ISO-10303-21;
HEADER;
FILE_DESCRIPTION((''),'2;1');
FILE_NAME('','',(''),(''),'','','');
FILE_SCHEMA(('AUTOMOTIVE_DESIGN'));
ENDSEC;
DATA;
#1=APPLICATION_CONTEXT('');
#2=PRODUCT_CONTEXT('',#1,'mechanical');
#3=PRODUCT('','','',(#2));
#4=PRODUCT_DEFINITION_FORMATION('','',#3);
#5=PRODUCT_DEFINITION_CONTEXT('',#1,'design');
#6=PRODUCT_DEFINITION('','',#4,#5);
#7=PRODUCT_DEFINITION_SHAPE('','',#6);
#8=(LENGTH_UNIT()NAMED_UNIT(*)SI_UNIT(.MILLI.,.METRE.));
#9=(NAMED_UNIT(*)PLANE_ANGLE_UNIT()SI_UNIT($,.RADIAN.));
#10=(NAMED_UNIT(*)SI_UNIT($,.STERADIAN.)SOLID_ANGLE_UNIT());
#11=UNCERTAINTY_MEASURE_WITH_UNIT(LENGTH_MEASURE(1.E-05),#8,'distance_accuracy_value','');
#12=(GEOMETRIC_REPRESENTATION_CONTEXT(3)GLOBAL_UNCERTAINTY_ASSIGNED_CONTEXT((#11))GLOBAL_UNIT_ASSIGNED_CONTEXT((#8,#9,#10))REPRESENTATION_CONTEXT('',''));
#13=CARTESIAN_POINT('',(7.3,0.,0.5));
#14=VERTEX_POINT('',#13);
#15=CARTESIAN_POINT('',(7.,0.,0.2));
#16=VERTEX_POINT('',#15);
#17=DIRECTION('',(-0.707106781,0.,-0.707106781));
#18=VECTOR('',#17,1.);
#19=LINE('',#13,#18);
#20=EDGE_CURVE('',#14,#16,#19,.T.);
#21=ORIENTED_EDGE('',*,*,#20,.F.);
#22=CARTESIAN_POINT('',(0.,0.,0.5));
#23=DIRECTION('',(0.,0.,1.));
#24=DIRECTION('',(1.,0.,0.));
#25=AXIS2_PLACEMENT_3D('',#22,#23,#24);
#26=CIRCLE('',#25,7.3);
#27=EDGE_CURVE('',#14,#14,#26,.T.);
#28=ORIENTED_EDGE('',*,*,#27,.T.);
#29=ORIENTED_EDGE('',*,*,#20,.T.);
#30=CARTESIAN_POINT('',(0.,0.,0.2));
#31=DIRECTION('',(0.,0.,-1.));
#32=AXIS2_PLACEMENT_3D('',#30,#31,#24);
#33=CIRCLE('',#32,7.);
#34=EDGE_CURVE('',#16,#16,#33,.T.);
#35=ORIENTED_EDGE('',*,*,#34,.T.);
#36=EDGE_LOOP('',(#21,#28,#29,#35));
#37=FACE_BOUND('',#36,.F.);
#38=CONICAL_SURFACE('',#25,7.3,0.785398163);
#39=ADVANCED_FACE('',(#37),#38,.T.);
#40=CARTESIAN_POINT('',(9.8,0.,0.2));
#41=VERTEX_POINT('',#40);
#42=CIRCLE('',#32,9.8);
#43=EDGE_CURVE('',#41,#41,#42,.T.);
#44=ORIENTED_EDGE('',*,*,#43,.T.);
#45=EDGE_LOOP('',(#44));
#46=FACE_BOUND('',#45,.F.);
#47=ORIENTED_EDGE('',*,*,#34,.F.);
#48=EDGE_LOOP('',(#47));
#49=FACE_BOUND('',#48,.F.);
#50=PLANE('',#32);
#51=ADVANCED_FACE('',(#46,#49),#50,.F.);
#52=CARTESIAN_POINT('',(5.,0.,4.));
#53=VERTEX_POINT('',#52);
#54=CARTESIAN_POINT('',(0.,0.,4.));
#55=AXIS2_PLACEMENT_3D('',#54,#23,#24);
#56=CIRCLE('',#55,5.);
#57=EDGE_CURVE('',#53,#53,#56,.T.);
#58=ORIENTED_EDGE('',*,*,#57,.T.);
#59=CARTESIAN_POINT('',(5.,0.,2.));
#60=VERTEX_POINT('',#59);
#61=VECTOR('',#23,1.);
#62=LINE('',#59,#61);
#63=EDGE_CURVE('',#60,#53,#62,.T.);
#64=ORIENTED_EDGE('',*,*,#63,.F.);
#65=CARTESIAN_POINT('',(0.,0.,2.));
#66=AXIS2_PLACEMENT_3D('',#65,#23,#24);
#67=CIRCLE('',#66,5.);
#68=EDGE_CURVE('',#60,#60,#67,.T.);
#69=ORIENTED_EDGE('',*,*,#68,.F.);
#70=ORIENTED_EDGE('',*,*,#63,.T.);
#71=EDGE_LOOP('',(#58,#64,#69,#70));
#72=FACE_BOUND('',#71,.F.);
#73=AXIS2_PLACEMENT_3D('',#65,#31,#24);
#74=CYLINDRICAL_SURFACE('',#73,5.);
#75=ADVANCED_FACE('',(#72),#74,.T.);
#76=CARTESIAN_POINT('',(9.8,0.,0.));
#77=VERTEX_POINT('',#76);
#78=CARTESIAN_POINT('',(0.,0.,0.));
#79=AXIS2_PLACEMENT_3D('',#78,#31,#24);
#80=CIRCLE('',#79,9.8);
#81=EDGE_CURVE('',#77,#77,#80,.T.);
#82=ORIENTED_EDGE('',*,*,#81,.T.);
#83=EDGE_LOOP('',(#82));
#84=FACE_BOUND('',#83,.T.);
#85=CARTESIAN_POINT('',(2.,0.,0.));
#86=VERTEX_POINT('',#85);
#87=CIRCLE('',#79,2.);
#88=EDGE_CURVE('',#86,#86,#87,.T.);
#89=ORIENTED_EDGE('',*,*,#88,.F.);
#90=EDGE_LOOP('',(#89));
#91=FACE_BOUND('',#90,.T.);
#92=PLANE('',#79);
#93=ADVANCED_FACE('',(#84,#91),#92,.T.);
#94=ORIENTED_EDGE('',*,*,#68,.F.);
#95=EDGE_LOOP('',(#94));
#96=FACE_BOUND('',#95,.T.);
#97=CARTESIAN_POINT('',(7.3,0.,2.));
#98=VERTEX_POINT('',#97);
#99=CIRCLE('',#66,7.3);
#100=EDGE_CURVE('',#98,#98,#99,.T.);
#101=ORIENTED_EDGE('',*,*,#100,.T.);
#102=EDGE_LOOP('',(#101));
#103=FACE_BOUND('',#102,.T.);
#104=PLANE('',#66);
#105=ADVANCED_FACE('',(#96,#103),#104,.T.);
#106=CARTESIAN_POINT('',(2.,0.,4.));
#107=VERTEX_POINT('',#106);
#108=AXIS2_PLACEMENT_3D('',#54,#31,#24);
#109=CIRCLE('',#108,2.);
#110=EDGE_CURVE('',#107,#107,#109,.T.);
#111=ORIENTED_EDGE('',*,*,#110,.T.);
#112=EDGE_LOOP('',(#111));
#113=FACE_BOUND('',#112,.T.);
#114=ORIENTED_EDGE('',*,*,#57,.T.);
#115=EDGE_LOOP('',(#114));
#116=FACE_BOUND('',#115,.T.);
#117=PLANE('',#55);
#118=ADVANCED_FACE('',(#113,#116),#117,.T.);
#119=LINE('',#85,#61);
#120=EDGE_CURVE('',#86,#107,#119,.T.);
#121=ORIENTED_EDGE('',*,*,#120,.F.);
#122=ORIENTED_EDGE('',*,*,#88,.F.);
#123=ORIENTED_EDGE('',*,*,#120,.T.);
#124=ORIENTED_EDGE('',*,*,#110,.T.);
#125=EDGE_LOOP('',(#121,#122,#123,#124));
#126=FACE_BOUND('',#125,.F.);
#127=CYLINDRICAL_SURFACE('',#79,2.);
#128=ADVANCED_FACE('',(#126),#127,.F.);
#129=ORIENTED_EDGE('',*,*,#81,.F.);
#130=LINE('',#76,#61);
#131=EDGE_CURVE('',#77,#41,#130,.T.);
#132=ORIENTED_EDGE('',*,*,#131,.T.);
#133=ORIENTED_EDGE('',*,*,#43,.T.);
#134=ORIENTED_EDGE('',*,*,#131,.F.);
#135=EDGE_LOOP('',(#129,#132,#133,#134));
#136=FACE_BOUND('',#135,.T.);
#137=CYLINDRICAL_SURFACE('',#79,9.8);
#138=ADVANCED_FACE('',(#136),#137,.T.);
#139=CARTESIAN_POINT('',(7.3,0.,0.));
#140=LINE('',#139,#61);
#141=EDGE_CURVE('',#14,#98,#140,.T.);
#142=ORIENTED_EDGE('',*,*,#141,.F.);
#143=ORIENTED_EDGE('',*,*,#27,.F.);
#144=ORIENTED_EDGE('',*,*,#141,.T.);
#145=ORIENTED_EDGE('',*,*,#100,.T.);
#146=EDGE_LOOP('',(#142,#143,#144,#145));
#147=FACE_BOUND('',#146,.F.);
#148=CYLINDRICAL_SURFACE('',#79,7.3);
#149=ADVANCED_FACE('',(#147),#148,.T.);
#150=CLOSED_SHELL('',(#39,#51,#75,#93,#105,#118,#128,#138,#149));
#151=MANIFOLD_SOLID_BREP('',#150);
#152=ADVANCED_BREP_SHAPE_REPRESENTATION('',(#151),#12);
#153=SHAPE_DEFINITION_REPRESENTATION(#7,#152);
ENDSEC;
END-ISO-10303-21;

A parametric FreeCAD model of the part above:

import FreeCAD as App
import Part
import Sketcher
Q = App.Units.Quantity


def edges_at(feature, points):
    """Names of the edges that pass closest to the given points."""
    edges = feature.Shape.Edges
    near = lambda p: min(range(len(edges)), key=lambda i: edges[i].distToShape(Part.Vertex(*p))[0])
    return sorted({f"Edge{near(p) + 1}" for p in points})

doc = App.newDocument("Part")
body = doc.addObject("PartDesign::Body", "Body")

sketch1 = body.newObject("Sketcher::SketchObject", "Sketch")
sketch1.AttachmentSupport = (doc.getObject("XY_Plane"), [""])
sketch1.MapMode = "FlatFace"
sketch1.addGeometry(Part.Circle(App.Vector(0, 0, 0), App.Vector(0, 0, 1), 7.3), False)
sketch1.addConstraint(Sketcher.Constraint("Coincident", 0, 3, -1, 1))
sketch1.addConstraint(Sketcher.Constraint("Diameter", 0, Q("14.6 mm")))
pad1 = body.newObject("PartDesign::Pad", "Pad")
pad1.Profile = sketch1
pad1.Length = 2

sketch2 = body.newObject("Sketcher::SketchObject", "Sketch001")
sketch2.AttachmentSupport = (doc.getObject("XY_Plane"), [""])
sketch2.MapMode = "FlatFace"
sketch2.AttachmentOffset = App.Placement(App.Vector(0, 0, 2), App.Rotation())
sketch2.addGeometry(Part.Circle(App.Vector(0, 0, 0), App.Vector(0, 0, 1), 5), False)
sketch2.addConstraint(Sketcher.Constraint("Coincident", 0, 3, -1, 1))
sketch2.addConstraint(Sketcher.Constraint("Diameter", 0, Q("10 mm")))
pad2 = body.newObject("PartDesign::Pad", "Pad001")
pad2.Profile = sketch2
pad2.Length = 2
doc.recompute()

chamfer = body.newObject("PartDesign::Chamfer", "Chamfer")
chamfer.Base = (pad2, edges_at(pad2, [(-7.3, 0, 0)]))
chamfer.Size = 0.5

sketch3 = body.newObject("Sketcher::SketchObject", "Sketch002")
sketch3.AttachmentSupport = (doc.getObject("XY_Plane"), [""])
sketch3.MapMode = "FlatFace"
sketch3.addGeometry(Part.Circle(App.Vector(0, 0, 0), App.Vector(0, 0, 1), 2), False)
sketch3.addConstraint(Sketcher.Constraint("Coincident", 0, 3, -1, 1))
sketch3.addConstraint(Sketcher.Constraint("Diameter", 0, Q("4 mm")))
pocket1 = body.newObject("PartDesign::Pocket", "Pocket")
pocket1.Profile = sketch3
pocket1.Type = "ThroughAll"
pocket1.Reversed = True

sketch4 = body.newObject("Sketcher::SketchObject", "Sketch003")
sketch4.AttachmentSupport = (doc.getObject("XY_Plane"), [""])
sketch4.MapMode = "FlatFace"
sketch4.addGeometry(Part.Circle(App.Vector(0, 0, 0), App.Vector(0, 0, 1), 9.8), False)
sketch4.addGeometry(Part.Circle(App.Vector(0, 0, 0), App.Vector(0, 0, 1), 6.8), False)
sketch4.addConstraint(Sketcher.Constraint("Coincident", 0, 3, -1, 1))
sketch4.addConstraint(Sketcher.Constraint("Coincident", 1, 3, -1, 1))
sketch4.addConstraint(Sketcher.Constraint("Diameter", 0, Q("19.6 mm")))
sketch4.addConstraint(Sketcher.Constraint("Diameter", 1, Q("13.6 mm")))
pad3 = body.newObject("PartDesign::Pad", "Pad002")
pad3.Profile = sketch4
pad3.Length = 0.2

doc.recompute()
